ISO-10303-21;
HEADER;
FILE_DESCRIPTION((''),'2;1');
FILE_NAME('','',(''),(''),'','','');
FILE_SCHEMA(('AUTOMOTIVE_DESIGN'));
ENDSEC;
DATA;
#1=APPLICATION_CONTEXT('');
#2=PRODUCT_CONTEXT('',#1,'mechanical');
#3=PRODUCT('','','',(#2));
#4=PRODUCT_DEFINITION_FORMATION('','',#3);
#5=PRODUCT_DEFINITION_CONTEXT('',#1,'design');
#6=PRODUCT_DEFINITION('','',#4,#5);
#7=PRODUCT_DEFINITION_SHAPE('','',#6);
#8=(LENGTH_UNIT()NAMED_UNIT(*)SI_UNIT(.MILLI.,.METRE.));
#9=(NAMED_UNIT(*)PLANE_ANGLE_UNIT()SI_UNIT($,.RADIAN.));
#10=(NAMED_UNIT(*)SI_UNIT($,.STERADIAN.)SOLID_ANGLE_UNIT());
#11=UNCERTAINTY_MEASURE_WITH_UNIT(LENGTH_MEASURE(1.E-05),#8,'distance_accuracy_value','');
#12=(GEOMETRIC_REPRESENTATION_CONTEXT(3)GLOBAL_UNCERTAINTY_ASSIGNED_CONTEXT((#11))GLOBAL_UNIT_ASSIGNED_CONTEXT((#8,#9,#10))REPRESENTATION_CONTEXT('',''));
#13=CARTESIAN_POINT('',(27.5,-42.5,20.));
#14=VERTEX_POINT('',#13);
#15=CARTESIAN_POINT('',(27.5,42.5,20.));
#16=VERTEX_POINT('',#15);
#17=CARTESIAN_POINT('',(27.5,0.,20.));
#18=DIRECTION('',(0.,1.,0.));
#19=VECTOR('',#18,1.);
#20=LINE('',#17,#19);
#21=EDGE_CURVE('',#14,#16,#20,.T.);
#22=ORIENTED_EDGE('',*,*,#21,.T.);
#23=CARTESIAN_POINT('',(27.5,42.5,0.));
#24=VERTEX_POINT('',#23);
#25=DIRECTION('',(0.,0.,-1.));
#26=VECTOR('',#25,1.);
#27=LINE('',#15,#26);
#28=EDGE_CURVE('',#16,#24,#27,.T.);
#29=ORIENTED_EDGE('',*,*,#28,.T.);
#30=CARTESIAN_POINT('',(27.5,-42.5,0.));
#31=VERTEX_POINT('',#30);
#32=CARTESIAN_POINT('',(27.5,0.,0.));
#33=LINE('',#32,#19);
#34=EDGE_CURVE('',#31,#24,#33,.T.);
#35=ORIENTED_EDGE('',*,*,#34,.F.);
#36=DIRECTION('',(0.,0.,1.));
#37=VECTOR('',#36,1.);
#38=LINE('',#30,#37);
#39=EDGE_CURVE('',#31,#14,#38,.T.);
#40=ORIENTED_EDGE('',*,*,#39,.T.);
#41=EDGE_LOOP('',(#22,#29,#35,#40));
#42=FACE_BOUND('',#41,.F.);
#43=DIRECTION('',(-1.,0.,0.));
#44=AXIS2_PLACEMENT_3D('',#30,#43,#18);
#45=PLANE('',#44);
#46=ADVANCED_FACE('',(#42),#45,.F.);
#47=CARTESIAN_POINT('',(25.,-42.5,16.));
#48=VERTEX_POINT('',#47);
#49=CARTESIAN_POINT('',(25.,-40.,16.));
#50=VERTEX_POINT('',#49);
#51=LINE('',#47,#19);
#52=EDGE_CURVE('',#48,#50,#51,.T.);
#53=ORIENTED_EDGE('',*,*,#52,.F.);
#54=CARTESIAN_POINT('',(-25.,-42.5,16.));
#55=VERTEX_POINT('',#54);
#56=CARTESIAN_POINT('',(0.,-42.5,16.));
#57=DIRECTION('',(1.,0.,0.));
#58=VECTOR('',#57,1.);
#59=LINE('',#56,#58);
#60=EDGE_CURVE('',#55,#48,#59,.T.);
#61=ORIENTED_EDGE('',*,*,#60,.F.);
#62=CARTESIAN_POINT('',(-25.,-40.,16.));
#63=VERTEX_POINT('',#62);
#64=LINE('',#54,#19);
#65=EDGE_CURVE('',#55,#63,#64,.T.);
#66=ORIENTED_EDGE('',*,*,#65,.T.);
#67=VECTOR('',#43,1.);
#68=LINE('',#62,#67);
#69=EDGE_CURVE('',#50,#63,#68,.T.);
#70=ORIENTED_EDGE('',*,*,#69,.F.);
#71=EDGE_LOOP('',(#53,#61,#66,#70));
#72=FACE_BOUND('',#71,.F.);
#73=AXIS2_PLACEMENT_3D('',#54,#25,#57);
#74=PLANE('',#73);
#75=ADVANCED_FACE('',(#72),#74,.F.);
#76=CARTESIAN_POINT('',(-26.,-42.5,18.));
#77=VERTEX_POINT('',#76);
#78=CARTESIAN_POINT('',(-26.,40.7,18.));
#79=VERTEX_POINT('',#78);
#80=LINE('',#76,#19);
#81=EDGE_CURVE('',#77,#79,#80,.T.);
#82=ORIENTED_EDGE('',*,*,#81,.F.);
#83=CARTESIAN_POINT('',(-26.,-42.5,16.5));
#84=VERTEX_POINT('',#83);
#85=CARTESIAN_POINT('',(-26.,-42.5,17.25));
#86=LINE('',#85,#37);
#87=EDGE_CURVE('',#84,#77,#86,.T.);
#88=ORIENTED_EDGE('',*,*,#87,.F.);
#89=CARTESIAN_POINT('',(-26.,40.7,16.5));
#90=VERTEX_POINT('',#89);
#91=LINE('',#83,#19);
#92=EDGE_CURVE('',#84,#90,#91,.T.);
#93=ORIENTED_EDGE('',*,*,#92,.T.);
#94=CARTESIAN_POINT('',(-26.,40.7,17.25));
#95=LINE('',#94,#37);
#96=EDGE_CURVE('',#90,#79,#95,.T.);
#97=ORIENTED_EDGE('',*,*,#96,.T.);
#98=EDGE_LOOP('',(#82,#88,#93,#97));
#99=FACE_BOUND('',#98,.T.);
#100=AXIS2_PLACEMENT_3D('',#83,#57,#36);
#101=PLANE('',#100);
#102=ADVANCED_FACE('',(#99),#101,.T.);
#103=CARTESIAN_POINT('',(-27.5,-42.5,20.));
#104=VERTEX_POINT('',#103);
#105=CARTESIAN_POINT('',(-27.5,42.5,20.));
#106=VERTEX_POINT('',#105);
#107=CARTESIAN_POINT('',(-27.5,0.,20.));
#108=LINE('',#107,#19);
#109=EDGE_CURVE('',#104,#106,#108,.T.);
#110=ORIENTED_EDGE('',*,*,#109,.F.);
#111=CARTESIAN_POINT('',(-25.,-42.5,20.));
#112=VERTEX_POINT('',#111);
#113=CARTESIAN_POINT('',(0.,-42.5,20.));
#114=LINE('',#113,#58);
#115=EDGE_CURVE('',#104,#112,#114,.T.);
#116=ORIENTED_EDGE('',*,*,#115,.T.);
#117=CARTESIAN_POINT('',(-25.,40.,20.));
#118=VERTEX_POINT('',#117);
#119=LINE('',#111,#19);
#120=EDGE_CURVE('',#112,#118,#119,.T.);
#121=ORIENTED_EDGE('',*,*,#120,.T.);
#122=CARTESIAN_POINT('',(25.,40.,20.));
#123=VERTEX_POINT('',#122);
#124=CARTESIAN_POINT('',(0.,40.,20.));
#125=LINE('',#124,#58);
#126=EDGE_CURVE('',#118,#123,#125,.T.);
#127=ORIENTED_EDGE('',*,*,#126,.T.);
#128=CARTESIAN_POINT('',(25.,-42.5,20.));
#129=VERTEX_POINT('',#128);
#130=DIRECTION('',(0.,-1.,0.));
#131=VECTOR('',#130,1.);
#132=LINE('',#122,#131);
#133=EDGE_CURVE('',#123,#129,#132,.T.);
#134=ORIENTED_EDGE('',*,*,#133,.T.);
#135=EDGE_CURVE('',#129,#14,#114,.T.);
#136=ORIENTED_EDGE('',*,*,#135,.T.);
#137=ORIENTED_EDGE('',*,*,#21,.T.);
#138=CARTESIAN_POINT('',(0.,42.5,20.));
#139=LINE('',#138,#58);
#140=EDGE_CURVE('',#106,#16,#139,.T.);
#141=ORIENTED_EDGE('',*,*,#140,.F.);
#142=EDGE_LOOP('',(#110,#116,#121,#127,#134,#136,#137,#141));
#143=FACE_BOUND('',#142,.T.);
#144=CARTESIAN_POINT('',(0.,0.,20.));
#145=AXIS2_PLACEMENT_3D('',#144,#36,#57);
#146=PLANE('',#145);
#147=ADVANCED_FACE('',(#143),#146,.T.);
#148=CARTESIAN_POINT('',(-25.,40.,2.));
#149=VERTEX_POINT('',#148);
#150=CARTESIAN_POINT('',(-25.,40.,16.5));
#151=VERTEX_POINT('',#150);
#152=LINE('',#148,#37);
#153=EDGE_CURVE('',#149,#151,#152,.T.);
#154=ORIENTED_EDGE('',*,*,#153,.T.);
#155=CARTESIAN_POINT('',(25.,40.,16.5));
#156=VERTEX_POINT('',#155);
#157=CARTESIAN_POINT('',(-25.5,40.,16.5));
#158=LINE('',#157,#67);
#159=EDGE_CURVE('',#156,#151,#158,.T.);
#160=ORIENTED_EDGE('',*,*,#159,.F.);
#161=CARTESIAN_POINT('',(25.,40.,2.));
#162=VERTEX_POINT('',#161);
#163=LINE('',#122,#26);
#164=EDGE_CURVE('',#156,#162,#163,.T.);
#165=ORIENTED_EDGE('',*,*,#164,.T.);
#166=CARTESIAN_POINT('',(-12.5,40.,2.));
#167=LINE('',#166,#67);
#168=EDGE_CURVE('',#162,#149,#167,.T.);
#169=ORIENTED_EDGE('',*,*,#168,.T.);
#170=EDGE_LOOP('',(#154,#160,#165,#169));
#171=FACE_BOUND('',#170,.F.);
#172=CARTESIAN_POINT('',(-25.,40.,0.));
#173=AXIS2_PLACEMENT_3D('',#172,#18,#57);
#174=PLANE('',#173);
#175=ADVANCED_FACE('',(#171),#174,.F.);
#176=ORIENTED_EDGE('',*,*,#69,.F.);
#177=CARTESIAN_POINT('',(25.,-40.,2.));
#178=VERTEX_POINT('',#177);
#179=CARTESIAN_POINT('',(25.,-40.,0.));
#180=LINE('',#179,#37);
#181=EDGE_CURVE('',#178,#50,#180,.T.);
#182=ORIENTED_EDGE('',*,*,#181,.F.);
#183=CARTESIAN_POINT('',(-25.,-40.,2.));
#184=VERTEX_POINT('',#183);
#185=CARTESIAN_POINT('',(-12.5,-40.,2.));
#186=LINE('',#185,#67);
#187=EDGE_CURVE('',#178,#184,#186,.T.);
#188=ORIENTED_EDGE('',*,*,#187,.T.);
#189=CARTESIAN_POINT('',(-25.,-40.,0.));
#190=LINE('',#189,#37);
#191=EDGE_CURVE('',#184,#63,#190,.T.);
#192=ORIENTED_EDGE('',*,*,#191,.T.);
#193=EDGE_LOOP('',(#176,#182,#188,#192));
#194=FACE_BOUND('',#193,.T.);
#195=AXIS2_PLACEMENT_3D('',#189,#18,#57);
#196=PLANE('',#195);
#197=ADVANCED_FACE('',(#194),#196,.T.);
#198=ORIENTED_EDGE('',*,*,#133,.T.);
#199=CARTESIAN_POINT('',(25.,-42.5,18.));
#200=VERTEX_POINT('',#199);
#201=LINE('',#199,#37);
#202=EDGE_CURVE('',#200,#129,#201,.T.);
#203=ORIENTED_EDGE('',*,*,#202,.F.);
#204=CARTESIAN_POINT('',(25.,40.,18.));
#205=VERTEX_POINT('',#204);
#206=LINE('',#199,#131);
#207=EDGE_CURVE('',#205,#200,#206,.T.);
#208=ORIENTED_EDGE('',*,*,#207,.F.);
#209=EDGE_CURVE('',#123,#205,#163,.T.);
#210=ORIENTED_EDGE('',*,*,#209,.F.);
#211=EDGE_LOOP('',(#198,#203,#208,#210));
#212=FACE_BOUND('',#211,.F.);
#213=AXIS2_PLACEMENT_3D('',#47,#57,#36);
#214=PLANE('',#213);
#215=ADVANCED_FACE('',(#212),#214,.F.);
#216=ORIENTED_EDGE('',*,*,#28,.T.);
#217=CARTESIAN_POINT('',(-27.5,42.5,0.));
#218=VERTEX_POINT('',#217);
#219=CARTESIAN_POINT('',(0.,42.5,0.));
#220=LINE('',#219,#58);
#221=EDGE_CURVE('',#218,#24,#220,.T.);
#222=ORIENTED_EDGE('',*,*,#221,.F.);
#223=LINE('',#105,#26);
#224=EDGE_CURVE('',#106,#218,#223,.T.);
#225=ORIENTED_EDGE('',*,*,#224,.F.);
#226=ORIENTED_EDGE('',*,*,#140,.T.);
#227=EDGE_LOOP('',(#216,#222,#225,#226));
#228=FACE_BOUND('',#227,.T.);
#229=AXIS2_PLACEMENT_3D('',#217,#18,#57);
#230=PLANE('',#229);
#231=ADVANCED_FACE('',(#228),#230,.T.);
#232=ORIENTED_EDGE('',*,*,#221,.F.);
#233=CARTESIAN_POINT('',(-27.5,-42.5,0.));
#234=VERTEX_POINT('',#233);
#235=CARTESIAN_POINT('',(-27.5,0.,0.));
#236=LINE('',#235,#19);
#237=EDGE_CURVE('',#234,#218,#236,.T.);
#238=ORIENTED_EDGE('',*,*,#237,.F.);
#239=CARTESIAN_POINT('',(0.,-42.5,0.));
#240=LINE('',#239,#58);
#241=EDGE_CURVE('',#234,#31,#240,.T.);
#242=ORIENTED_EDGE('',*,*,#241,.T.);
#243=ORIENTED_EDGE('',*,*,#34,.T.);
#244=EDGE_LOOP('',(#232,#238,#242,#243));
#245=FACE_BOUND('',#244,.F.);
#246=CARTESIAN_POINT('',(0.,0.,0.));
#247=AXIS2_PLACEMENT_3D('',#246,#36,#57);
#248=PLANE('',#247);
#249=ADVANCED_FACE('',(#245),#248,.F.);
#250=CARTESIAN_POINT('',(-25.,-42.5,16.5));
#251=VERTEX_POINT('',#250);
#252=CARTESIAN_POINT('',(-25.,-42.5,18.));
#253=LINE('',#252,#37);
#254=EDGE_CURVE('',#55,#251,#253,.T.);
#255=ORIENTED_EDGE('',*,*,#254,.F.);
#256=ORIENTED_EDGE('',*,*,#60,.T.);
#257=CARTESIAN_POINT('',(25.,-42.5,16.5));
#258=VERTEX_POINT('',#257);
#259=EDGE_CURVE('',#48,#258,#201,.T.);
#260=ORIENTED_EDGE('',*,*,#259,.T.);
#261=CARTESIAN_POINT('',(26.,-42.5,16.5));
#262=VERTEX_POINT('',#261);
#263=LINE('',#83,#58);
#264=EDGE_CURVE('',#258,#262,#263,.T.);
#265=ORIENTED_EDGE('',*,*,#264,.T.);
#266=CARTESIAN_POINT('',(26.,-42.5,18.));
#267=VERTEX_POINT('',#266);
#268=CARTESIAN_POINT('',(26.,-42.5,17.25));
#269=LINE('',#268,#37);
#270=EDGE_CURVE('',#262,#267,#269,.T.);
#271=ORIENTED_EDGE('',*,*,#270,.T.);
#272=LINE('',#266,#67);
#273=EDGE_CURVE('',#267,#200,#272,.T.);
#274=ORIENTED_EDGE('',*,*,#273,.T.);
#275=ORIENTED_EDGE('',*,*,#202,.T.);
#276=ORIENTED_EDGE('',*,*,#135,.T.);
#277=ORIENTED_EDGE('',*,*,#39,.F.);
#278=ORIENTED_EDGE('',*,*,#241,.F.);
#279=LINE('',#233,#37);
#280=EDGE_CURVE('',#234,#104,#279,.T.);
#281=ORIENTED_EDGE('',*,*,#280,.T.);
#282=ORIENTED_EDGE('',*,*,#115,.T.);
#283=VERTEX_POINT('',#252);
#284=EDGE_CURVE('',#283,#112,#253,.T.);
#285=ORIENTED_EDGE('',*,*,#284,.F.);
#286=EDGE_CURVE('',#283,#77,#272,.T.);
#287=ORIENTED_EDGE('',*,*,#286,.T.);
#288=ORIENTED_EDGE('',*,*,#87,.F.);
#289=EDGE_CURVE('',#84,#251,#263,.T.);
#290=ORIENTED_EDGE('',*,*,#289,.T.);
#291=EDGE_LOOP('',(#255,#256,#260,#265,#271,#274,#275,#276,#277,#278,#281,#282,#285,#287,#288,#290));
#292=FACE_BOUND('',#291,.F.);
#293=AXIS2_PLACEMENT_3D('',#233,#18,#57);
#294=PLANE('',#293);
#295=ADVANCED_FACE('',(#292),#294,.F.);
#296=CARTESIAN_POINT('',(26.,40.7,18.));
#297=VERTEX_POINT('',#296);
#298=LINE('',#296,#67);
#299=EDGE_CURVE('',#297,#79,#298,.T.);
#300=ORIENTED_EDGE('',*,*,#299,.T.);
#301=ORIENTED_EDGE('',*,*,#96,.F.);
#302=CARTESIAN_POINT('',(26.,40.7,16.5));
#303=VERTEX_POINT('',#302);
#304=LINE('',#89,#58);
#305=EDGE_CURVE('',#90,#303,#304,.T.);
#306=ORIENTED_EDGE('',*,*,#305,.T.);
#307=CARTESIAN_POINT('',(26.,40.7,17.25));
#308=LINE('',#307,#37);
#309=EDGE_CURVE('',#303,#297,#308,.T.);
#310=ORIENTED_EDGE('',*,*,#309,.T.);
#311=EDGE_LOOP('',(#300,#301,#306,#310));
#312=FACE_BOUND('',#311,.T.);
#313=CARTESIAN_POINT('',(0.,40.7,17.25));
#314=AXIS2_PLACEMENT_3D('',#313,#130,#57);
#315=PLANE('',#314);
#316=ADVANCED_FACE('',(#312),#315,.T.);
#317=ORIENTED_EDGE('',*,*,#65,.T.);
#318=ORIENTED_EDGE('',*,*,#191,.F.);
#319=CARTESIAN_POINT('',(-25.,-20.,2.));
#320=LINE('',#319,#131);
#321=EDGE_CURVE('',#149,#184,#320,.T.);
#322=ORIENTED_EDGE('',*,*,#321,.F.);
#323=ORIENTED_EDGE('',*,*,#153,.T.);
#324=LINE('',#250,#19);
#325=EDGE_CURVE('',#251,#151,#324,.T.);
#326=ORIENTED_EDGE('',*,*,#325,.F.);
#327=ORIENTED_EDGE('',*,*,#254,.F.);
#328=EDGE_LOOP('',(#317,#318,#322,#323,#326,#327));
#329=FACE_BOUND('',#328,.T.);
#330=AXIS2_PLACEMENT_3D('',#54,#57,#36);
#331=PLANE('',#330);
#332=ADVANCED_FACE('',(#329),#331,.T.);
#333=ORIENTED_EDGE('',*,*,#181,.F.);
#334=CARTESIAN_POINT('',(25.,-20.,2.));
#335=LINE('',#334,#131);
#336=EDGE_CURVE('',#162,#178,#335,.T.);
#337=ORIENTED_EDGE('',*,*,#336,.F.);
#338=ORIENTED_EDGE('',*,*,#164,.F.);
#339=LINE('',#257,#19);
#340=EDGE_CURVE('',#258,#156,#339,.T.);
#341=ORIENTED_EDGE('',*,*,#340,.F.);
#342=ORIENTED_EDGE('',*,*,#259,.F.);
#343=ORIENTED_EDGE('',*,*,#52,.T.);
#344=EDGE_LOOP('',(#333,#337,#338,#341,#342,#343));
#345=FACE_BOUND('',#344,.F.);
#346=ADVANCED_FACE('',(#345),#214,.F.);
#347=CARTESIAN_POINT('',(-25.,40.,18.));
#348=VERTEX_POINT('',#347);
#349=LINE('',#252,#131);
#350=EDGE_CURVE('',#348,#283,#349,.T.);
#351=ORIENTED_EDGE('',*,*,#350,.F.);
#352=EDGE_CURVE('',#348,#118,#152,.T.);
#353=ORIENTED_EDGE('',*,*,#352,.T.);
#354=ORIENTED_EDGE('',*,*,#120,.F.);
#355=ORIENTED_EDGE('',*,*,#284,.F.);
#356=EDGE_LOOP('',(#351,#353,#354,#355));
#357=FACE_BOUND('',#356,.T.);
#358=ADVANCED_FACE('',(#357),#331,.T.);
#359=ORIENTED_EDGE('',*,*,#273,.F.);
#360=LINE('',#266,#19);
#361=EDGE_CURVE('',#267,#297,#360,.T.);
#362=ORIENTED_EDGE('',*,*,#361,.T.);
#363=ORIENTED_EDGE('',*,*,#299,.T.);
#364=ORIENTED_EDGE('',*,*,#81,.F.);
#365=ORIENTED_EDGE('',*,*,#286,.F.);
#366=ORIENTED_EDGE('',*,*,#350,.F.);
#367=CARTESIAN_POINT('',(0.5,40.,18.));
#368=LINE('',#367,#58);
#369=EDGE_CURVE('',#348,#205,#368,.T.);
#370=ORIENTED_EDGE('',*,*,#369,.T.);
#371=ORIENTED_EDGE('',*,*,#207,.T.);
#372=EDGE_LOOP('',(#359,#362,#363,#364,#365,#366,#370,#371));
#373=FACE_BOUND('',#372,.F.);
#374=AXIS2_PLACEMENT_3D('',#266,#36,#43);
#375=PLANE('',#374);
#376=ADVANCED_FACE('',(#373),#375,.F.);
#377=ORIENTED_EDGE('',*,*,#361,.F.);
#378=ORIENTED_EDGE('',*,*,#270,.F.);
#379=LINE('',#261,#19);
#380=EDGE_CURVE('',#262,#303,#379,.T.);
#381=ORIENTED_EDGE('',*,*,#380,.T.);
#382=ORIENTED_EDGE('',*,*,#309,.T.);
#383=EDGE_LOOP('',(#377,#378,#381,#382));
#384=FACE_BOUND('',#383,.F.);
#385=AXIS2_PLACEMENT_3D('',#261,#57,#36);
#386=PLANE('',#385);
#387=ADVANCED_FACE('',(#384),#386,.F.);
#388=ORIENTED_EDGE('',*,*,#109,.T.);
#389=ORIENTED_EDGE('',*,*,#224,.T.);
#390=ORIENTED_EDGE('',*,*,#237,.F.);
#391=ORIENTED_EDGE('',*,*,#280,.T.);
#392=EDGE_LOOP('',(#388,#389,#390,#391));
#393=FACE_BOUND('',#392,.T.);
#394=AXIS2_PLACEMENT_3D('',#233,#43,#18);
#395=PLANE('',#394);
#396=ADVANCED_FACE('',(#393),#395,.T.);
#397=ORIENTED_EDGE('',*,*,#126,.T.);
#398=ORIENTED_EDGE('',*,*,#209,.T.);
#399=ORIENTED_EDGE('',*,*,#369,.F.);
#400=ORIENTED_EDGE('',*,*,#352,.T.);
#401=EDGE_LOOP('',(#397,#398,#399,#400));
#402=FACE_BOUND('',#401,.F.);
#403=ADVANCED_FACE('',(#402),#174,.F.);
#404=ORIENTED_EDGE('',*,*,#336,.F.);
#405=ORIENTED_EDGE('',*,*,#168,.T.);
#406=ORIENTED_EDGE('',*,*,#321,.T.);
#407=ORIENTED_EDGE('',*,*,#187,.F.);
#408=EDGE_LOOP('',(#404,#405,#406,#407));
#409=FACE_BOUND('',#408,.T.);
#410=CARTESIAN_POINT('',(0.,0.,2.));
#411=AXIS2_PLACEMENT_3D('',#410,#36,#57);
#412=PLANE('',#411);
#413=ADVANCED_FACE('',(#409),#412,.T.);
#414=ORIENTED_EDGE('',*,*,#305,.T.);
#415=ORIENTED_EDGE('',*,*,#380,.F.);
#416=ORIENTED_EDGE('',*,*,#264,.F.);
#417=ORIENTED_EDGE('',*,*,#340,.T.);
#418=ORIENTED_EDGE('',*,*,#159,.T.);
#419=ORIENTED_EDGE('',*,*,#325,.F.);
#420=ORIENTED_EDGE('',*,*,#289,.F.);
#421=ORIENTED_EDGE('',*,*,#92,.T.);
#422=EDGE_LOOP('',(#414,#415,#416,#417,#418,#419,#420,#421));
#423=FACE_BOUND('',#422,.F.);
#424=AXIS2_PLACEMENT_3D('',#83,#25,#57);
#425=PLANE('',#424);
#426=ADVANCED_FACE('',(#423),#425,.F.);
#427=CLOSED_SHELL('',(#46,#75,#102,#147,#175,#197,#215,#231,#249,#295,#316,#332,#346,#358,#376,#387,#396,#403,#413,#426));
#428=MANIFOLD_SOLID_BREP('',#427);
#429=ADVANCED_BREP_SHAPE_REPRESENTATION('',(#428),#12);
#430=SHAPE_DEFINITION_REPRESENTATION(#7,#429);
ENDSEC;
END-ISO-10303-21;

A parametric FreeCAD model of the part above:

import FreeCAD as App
import Part
import Sketcher

doc = App.newDocument("Part")
body = doc.addObject("PartDesign::Body", "Body")

# Sketch on XY plane
sketch1 = body.newObject("Sketcher::SketchObject", "Sketch")
sketch1.AttachmentSupport = (doc.getObject("XY_Plane"), [""])
sketch1.MapMode = "FlatFace"
sketch1.addGeometry([
    Part.LineSegment(App.Vector(-27.5, 42.5, 0), App.Vector(-27.5, -42.5, 0)),
    Part.LineSegment(App.Vector(-27.5, -42.5, 0), App.Vector(27.5, -42.5, 0)),
    Part.LineSegment(App.Vector(27.5, -42.5, 0), App.Vector(27.5, 42.5, 0)),
    Part.LineSegment(App.Vector(27.5, 42.5, 0), App.Vector(-27.5, 42.5, 0)),
], False)
sketch1.addConstraint([
    Sketcher.Constraint("Coincident", 0, 2, 1, 1),
    Sketcher.Constraint("Coincident", 1, 2, 2, 1),
    Sketcher.Constraint("Coincident", 2, 2, 3, 1),
    Sketcher.Constraint("Coincident", 3, 2, 0, 1),
    Sketcher.Constraint("Vertical", 0),
    Sketcher.Constraint("Horizontal", 1),
    Sketcher.Constraint("Vertical", 2),
    Sketcher.Constraint("Horizontal", 3),
    Sketcher.Constraint("Symmetric", 0, 2, 2, 2, -1, 1),
    Sketcher.Constraint("DistanceX", 1, 1, 1, 2, 55.0),
    Sketcher.Constraint("DistanceY", 0, 2, 0, 1, 85.0),
])
pad1 = body.newObject("PartDesign::Pad", "Pad")
pad1.Profile = sketch1
pad1.Length = 2

# Sketch on XY plane
sketch2 = body.newObject("Sketcher::SketchObject", "Sketch001")
sketch2.AttachmentSupport = (doc.getObject("XY_Plane"), [""])
sketch2.MapMode = "FlatFace"
sketch2.addGeometry([
    Part.LineSegment(App.Vector(-27.5, 42.5, 0), App.Vector(-27.5, -42.5, 0)),  # 0
    Part.LineSegment(App.Vector(-27.5, -42.5, 0), App.Vector(27.5, -42.5, 0)),  # 1
    Part.LineSegment(App.Vector(27.5, -42.5, 0), App.Vector(27.5, 42.5, 0)),  # 2
    Part.LineSegment(App.Vector(27.5, 42.5, 0), App.Vector(-27.5, 42.5, 0)),  # 3
    Part.LineSegment(App.Vector(25, -40, 0), App.Vector(-25, -40, 0)),  # 4
    Part.LineSegment(App.Vector(-25, -40, 0), App.Vector(-25, 40, 0)),  # 5
    Part.LineSegment(App.Vector(-25, 40, 0), App.Vector(25, 40, 0)),  # 6
    Part.LineSegment(App.Vector(25, 40, 0), App.Vector(25, -40, 0)),  # 7
], False)
sketch2.addConstraint([
    Sketcher.Constraint("Coincident", 0, 2, 1, 1),
    Sketcher.Constraint("Coincident", 1, 2, 2, 1),
    Sketcher.Constraint("Coincident", 2, 2, 3, 1),
    Sketcher.Constraint("Coincident", 3, 2, 0, 1),
    Sketcher.Constraint("Coincident", 4, 2, 5, 1),
    Sketcher.Constraint("Coincident", 5, 2, 6, 1),
    Sketcher.Constraint("Coincident", 6, 2, 7, 1),
    Sketcher.Constraint("Coincident", 7, 2, 4, 1),
    Sketcher.Constraint("Vertical", 0),
    Sketcher.Constraint("Horizontal", 1),
    Sketcher.Constraint("Vertical", 2),
    Sketcher.Constraint("Horizontal", 3),
    Sketcher.Constraint("Horizontal", 4),
    Sketcher.Constraint("Vertical", 5),
    Sketcher.Constraint("Horizontal", 6),
    Sketcher.Constraint("Vertical", 7),
    Sketcher.Constraint("Symmetric", 0, 2, 2, 2, -1, 1),
    Sketcher.Constraint("Symmetric", 4, 2, 6, 2, -1, 1),
    Sketcher.Constraint("DistanceX", 1, 1, 1, 2, 55.0),
    Sketcher.Constraint("DistanceX", 4, 2, 4, 1, 50.0),
    Sketcher.Constraint("DistanceY", 0, 2, 0, 1, 85.0),
    Sketcher.Constraint("DistanceY", 5, 1, 5, 2, 80.0),
])
pad2 = body.newObject("PartDesign::Pad", "Pad001")
pad2.Profile = sketch2
pad2.Length = 20

# Sketch on XZ plane
sketch3 = body.newObject("Sketcher::SketchObject", "Sketch002")
sketch3.AttachmentSupport = (doc.getObject("XZ_Plane"), [""])
sketch3.MapMode = "FlatFace"
sketch3.AttachmentOffset = App.Placement(App.Vector(0, 0, 42.5), App.Rotation())
sketch3.addGeometry([
    Part.LineSegment(App.Vector(-25, 20, 0), App.Vector(-25, 16, 0)),
    Part.LineSegment(App.Vector(-25, 16, 0), App.Vector(25, 16, 0)),
    Part.LineSegment(App.Vector(25, 16, 0), App.Vector(25, 20, 0)),
    Part.LineSegment(App.Vector(25, 20, 0), App.Vector(-25, 20, 0)),
], False)
sketch3.addConstraint([
    Sketcher.Constraint("Coincident", 0, 2, 1, 1),
    Sketcher.Constraint("Coincident", 1, 2, 2, 1),
    Sketcher.Constraint("Coincident", 2, 2, 3, 1),
    Sketcher.Constraint("Coincident", 3, 2, 0, 1),
    Sketcher.Constraint("Vertical", 0),
    Sketcher.Constraint("Horizontal", 1),
    Sketcher.Constraint("Vertical", 2),
    Sketcher.Constraint("Horizontal", 3),
    Sketcher.Constraint("DistanceX", 1, 1, 1, 2, 50.0),
    Sketcher.Constraint("DistanceY", 0, 2, 0, 1, 4.0),
    Sketcher.Constraint("DistanceX", 0, 2, -1, 1, 25.0),
    Sketcher.Constraint("DistanceY", -1, 1, 0, 2, 16.0),
])
pocket1 = body.newObject("PartDesign::Pocket", "Pocket")
pocket1.Profile = sketch3
pocket1.Length = 82.5

# Sketch on XZ plane
sketch4 = body.newObject("Sketcher::SketchObject", "Sketch003")
sketch4.AttachmentSupport = (doc.getObject("XZ_Plane"), [""])
sketch4.MapMode = "FlatFace"
sketch4.AttachmentOffset = App.Placement(App.Vector(0, 0, 42.5), App.Rotation())
sketch4.addGeometry([
    Part.LineSegment(App.Vector(-26, 18, 0), App.Vector(-26, 16.5, 0)),
    Part.LineSegment(App.Vector(-26, 16.5, 0), App.Vector(26, 16.5, 0)),
    Part.LineSegment(App.Vector(26, 16.5, 0), App.Vector(26, 18, 0)),
    Part.LineSegment(App.Vector(26, 18, 0), App.Vector(-26, 18, 0)),
], False)
sketch4.addConstraint([
    Sketcher.Constraint("Coincident", 0, 2, 1, 1),
    Sketcher.Constraint("Coincident", 1, 2, 2, 1),
    Sketcher.Constraint("Coincident", 2, 2, 3, 1),
    Sketcher.Constraint("Coincident", 3, 2, 0, 1),
    Sketcher.Constraint("Vertical", 0),
    Sketcher.Constraint("Horizontal", 1),
    Sketcher.Constraint("Vertical", 2),
    Sketcher.Constraint("Horizontal", 3),
    Sketcher.Constraint("DistanceX", 1, 1, 1, 2, 52.0),
    Sketcher.Constraint("DistanceY", 0, 2, 0, 1, 1.5),
    Sketcher.Constraint("DistanceX", 0, 2, -1, 1, 26.0),
    Sketcher.Constraint("DistanceY", -1, 1, 2, 2, 18.0),
])
pocket2 = body.newObject("PartDesign::Pocket", "Pocket001")
pocket2.Profile = sketch4
pocket2.Length = 83.2

doc.recompute()
